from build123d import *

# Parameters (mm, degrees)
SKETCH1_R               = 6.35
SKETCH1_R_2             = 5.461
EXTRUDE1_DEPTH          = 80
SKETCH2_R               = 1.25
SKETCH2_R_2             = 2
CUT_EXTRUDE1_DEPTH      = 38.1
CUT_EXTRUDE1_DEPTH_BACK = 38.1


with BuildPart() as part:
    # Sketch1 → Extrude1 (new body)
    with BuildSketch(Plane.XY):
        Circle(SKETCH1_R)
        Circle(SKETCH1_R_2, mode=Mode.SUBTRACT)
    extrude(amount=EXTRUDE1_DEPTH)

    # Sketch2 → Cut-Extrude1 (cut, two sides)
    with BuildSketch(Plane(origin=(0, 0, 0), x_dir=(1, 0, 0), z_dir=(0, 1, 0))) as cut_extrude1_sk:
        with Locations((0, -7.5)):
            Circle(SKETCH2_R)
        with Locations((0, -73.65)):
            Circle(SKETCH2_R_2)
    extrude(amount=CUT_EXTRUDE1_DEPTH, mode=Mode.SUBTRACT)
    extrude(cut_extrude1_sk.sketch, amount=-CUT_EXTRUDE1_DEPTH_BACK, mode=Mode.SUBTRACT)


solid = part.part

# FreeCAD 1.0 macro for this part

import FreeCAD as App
import Part
import Sketcher
from FreeCAD import Vector
Q = App.Units.Quantity

doc = App.newDocument("Part")
params = doc.addObject("Spreadsheet::Sheet", "Params")
for row, (alias, value) in enumerate([
    ("sketch1_diameter", "12.7 mm"),
    ("pad1_length", "80 mm"),
    ("sketch2_diameter", "4 mm"),
    ("sketch2_diameter2", "2.5 mm"),
], start=1):
    params.set(f"A{row}", alias)
    params.set(f"B{row}", "=" + value)
    params.setAlias(f"B{row}", alias)

body = doc.addObject("PartDesign::Body", "Body")

# Sketch on XY plane
sketch1 = doc.addObject("Sketcher::SketchObject", "Sketch")
body.addObject(sketch1)
sketch1.AttachmentSupport = (doc.XY_Plane, [""])
sketch1.MapMode = "FlatFace"
sketch1.addGeometry([
    Part.Circle(Vector(0, 0, 0), Vector(0, 0, 1), 6),
    Part.Circle(Vector(0, 0, 0), Vector(0, 0, 1), 5),
], False)
sketch1.addConstraint([
    Sketcher.Constraint("Coincident", 0, 3, -1, 1),
    Sketcher.Constraint("Coincident", 1, 3, -1, 1),
    Sketcher.Constraint("Diameter", 0, Q("12.7 mm")),
    Sketcher.Constraint("Diameter", 1, Q("10.922 mm")),
])
sketch1.setExpression("Constraints[2]", "Params.sketch1_diameter")
pad1 = doc.addObject("PartDesign::Pad", "Pad")
body.addObject(pad1)
pad1.Profile = sketch1
pad1.setExpression("Length", "Params.pad1_length")

# Sketch on XZ plane
sketch2 = doc.addObject("Sketcher::SketchObject", "Sketch001")
body.addObject(sketch2)
sketch2.AttachmentSupport = (doc.XZ_Plane, [""])
sketch2.MapMode = "FlatFace"
sketch2.addGeometry([
    Part.Circle(Vector(0, 7.5, 0), Vector(0, 0, 1), 1.2),
    Part.Circle(Vector(0, 73.7, 0), Vector(0, 0, 1), 2),
], False)
sketch2.addConstraint([
    Sketcher.Constraint("PointOnObject", 0, 3, -2),
    Sketcher.Constraint("PointOnObject", 1, 3, -2),
    Sketcher.Constraint("Diameter", 1, Q("4 mm")),
    Sketcher.Constraint("Diameter", 0, Q("2.5 mm")),
    Sketcher.Constraint("DistanceY", -1, 1, 0, 3, Q("7.5 mm")),
    Sketcher.Constraint("DistanceY", -1, 1, 1, 3, Q("73.65 mm")),
])
sketch2.setExpression("Constraints[2]", "Params.sketch2_diameter")
sketch2.setExpression("Constraints[3]", "Params.sketch2_diameter2")
pocket1 = doc.addObject("PartDesign::Pocket", "Pocket")
body.addObject(pocket1)
pocket1.Profile = sketch2
pocket1.Type = "ThroughAll"
pocket1.Midplane = True

doc.recompute()
